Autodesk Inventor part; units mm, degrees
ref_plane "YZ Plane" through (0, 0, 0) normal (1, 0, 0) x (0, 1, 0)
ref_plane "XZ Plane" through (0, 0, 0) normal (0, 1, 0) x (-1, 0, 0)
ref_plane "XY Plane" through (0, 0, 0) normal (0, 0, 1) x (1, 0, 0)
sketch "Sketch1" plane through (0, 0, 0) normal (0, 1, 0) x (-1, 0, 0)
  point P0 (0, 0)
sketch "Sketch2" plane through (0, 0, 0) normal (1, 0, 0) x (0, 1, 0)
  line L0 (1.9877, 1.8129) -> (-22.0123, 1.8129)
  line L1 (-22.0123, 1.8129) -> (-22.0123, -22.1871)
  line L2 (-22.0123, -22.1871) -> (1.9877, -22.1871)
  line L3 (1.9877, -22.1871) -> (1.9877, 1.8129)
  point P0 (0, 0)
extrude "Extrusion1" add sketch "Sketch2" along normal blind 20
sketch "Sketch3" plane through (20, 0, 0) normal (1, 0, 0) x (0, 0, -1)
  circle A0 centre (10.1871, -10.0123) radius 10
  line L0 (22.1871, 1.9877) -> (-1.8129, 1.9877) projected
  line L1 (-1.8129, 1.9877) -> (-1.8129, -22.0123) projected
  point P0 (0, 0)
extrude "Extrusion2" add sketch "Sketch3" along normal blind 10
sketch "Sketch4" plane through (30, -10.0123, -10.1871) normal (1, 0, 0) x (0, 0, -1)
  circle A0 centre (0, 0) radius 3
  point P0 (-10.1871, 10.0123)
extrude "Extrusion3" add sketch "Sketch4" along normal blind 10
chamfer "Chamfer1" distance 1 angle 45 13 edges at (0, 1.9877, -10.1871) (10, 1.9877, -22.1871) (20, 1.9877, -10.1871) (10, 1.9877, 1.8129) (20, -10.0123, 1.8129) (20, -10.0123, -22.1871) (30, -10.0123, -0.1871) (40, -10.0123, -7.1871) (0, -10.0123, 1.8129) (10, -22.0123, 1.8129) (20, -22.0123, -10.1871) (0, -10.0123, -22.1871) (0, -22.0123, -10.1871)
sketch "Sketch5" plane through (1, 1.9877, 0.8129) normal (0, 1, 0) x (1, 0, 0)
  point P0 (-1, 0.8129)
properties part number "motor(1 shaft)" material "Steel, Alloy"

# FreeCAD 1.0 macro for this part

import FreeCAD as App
import Part
import Sketcher

V = App.Vector


def edges_at(feature, points):
    """Names of the edges that pass closest to the given points."""
    edges = feature.Shape.Edges
    near = lambda p: min(range(len(edges)), key=lambda i: edges[i].distToShape(Part.Vertex(*p))[0])
    return sorted({f"Edge{near(p) + 1}" for p in points})


def add_polygon(sketch, points):
    """Adds a closed chain of lines whose ends are joined by coincident constraints."""
    first, n = sketch.GeometryCount, len(points)
    for a, b in zip(points, points[1:] + points[:1]):
        sketch.addGeometry(Part.LineSegment(App.Vector(*a, 0), App.Vector(*b, 0)), False)
    for i in range(n):
        sketch.addConstraint(Sketcher.Constraint("Coincident", first + i, 2, first + (i + 1) % n, 1))

doc = App.newDocument("Part")
params = doc.addObject("Spreadsheet::Sheet", "Params")
for row, (alias, value) in enumerate([
    ("sketch1_width", "24 mm"),
    ("pad1_length", "20 mm"),
    ("sketch2_diameter", "20 mm"),
    ("pad2_length", "10 mm"),
    ("sketch3_diameter", "6 mm"),
    ("pad3_length", "10 mm"),
    ("chamfer_size", "1 mm"),
], start=1):
    params.set(f"A{row}", alias)
    params.set(f"B{row}", "=" + value)
    params.setAlias(f"B{row}", alias)

body = doc.addObject("PartDesign::Body", "Body")

sketch1 = body.newObject("Sketcher::SketchObject", "Sketch")
sketch1.AttachmentSupport = (doc.getObject("YZ_Plane"), [""])
sketch1.MapMode = "FlatFace"
add_polygon(sketch1, [(1.9877, -22.1871), (1.9877, 1.8129), (-22.0123, 1.8129), (-22.0123, -22.1871)])
sketch1.addConstraint([
    Sketcher.Constraint("Vertical", 0),
    Sketcher.Constraint("Horizontal", 1),
    Sketcher.Constraint("Vertical", 2),
    Sketcher.Constraint("Horizontal", 3),
    Sketcher.Constraint("Equal", 3, 0),
    Sketcher.Constraint("DistanceX", 1, 2, 1, 1, 24.0),
    Sketcher.Constraint("DistanceY", -1, 1, 0, 2, 1.813),
    Sketcher.Constraint("DistanceX", -1, 1, 0, 2, 1.9877),
])
sketch1.setExpression("Constraints[9]", "Params.sketch1_width")
pad1 = body.newObject("PartDesign::Pad", "Pad")
pad1.Profile = sketch1
pad1.setExpression("Length", "Params.pad1_length")

sketch2 = body.newObject("Sketcher::SketchObject", "Sketch001")
sketch2.AttachmentSupport = (doc.getObject("YZ_Plane"), [""])
sketch2.MapMode = "FlatFace"
sketch2.AttachmentOffset = App.Placement(V(0, 0, 20), App.Rotation())
sketch2.addGeometry(Part.Circle(V(-10.0123, -10.1871, 0), V(0, 0, 1), 10), False)
sketch2.addConstraint([
    Sketcher.Constraint("Diameter", 0, 20.0),
    Sketcher.Constraint("DistanceY", 0, 3, -1, 1, 10.187),
    Sketcher.Constraint("DistanceX", 0, 3, -1, 1, 10.0123),
])
sketch2.setExpression("Constraints[0]", "Params.sketch2_diameter")
pad2 = body.newObject("PartDesign::Pad", "Pad001")
pad2.Profile = sketch2
pad2.setExpression("Length", "Params.pad2_length")

sketch3 = body.newObject("Sketcher::SketchObject", "Sketch002")
sketch3.AttachmentSupport = (doc.getObject("YZ_Plane"), [""])
sketch3.MapMode = "FlatFace"
sketch3.AttachmentOffset = App.Placement(V(0, 0, 30), App.Rotation())
sketch3.addGeometry(Part.Circle(V(-10.0123, -10.1871, 0), V(0, 0, 1), 3), False)
sketch3.addConstraint([
    Sketcher.Constraint("Diameter", 0, 6.0),
    Sketcher.Constraint("DistanceY", 0, 3, -1, 1, 10.187),
    Sketcher.Constraint("DistanceX", 0, 3, -1, 1, 10.0123),
])
sketch3.setExpression("Constraints[0]", "Params.sketch3_diameter")
pad3 = body.newObject("PartDesign::Pad", "Pad002")
pad3.Profile = sketch3
pad3.setExpression("Length", "Params.pad3_length")
doc.recompute()

chamfer = body.newObject("PartDesign::Chamfer", "Chamfer")
chamfer.Base = (pad3, edges_at(pad3, [
    (0, 1.988, -10.187),
    (10, 1.988, -22.187),
    (20, 1.988, -10.187),
    (10, 1.988, 1.813),
    (20, -10.012, 1.813),
    (20, -10.012, -22.187),
    (30, -10.012, -0.187),
    (40, -10.012, -7.187),
    (0, -10.012, 1.813),
    (10, -22.012, 1.813),
    (20, -22.012, -10.187),
    (0, -10.012, -22.187),
    (0, -22.012, -10.187),
]))
chamfer.setExpression("Size", "Params.chamfer_size")

doc.recompute()
